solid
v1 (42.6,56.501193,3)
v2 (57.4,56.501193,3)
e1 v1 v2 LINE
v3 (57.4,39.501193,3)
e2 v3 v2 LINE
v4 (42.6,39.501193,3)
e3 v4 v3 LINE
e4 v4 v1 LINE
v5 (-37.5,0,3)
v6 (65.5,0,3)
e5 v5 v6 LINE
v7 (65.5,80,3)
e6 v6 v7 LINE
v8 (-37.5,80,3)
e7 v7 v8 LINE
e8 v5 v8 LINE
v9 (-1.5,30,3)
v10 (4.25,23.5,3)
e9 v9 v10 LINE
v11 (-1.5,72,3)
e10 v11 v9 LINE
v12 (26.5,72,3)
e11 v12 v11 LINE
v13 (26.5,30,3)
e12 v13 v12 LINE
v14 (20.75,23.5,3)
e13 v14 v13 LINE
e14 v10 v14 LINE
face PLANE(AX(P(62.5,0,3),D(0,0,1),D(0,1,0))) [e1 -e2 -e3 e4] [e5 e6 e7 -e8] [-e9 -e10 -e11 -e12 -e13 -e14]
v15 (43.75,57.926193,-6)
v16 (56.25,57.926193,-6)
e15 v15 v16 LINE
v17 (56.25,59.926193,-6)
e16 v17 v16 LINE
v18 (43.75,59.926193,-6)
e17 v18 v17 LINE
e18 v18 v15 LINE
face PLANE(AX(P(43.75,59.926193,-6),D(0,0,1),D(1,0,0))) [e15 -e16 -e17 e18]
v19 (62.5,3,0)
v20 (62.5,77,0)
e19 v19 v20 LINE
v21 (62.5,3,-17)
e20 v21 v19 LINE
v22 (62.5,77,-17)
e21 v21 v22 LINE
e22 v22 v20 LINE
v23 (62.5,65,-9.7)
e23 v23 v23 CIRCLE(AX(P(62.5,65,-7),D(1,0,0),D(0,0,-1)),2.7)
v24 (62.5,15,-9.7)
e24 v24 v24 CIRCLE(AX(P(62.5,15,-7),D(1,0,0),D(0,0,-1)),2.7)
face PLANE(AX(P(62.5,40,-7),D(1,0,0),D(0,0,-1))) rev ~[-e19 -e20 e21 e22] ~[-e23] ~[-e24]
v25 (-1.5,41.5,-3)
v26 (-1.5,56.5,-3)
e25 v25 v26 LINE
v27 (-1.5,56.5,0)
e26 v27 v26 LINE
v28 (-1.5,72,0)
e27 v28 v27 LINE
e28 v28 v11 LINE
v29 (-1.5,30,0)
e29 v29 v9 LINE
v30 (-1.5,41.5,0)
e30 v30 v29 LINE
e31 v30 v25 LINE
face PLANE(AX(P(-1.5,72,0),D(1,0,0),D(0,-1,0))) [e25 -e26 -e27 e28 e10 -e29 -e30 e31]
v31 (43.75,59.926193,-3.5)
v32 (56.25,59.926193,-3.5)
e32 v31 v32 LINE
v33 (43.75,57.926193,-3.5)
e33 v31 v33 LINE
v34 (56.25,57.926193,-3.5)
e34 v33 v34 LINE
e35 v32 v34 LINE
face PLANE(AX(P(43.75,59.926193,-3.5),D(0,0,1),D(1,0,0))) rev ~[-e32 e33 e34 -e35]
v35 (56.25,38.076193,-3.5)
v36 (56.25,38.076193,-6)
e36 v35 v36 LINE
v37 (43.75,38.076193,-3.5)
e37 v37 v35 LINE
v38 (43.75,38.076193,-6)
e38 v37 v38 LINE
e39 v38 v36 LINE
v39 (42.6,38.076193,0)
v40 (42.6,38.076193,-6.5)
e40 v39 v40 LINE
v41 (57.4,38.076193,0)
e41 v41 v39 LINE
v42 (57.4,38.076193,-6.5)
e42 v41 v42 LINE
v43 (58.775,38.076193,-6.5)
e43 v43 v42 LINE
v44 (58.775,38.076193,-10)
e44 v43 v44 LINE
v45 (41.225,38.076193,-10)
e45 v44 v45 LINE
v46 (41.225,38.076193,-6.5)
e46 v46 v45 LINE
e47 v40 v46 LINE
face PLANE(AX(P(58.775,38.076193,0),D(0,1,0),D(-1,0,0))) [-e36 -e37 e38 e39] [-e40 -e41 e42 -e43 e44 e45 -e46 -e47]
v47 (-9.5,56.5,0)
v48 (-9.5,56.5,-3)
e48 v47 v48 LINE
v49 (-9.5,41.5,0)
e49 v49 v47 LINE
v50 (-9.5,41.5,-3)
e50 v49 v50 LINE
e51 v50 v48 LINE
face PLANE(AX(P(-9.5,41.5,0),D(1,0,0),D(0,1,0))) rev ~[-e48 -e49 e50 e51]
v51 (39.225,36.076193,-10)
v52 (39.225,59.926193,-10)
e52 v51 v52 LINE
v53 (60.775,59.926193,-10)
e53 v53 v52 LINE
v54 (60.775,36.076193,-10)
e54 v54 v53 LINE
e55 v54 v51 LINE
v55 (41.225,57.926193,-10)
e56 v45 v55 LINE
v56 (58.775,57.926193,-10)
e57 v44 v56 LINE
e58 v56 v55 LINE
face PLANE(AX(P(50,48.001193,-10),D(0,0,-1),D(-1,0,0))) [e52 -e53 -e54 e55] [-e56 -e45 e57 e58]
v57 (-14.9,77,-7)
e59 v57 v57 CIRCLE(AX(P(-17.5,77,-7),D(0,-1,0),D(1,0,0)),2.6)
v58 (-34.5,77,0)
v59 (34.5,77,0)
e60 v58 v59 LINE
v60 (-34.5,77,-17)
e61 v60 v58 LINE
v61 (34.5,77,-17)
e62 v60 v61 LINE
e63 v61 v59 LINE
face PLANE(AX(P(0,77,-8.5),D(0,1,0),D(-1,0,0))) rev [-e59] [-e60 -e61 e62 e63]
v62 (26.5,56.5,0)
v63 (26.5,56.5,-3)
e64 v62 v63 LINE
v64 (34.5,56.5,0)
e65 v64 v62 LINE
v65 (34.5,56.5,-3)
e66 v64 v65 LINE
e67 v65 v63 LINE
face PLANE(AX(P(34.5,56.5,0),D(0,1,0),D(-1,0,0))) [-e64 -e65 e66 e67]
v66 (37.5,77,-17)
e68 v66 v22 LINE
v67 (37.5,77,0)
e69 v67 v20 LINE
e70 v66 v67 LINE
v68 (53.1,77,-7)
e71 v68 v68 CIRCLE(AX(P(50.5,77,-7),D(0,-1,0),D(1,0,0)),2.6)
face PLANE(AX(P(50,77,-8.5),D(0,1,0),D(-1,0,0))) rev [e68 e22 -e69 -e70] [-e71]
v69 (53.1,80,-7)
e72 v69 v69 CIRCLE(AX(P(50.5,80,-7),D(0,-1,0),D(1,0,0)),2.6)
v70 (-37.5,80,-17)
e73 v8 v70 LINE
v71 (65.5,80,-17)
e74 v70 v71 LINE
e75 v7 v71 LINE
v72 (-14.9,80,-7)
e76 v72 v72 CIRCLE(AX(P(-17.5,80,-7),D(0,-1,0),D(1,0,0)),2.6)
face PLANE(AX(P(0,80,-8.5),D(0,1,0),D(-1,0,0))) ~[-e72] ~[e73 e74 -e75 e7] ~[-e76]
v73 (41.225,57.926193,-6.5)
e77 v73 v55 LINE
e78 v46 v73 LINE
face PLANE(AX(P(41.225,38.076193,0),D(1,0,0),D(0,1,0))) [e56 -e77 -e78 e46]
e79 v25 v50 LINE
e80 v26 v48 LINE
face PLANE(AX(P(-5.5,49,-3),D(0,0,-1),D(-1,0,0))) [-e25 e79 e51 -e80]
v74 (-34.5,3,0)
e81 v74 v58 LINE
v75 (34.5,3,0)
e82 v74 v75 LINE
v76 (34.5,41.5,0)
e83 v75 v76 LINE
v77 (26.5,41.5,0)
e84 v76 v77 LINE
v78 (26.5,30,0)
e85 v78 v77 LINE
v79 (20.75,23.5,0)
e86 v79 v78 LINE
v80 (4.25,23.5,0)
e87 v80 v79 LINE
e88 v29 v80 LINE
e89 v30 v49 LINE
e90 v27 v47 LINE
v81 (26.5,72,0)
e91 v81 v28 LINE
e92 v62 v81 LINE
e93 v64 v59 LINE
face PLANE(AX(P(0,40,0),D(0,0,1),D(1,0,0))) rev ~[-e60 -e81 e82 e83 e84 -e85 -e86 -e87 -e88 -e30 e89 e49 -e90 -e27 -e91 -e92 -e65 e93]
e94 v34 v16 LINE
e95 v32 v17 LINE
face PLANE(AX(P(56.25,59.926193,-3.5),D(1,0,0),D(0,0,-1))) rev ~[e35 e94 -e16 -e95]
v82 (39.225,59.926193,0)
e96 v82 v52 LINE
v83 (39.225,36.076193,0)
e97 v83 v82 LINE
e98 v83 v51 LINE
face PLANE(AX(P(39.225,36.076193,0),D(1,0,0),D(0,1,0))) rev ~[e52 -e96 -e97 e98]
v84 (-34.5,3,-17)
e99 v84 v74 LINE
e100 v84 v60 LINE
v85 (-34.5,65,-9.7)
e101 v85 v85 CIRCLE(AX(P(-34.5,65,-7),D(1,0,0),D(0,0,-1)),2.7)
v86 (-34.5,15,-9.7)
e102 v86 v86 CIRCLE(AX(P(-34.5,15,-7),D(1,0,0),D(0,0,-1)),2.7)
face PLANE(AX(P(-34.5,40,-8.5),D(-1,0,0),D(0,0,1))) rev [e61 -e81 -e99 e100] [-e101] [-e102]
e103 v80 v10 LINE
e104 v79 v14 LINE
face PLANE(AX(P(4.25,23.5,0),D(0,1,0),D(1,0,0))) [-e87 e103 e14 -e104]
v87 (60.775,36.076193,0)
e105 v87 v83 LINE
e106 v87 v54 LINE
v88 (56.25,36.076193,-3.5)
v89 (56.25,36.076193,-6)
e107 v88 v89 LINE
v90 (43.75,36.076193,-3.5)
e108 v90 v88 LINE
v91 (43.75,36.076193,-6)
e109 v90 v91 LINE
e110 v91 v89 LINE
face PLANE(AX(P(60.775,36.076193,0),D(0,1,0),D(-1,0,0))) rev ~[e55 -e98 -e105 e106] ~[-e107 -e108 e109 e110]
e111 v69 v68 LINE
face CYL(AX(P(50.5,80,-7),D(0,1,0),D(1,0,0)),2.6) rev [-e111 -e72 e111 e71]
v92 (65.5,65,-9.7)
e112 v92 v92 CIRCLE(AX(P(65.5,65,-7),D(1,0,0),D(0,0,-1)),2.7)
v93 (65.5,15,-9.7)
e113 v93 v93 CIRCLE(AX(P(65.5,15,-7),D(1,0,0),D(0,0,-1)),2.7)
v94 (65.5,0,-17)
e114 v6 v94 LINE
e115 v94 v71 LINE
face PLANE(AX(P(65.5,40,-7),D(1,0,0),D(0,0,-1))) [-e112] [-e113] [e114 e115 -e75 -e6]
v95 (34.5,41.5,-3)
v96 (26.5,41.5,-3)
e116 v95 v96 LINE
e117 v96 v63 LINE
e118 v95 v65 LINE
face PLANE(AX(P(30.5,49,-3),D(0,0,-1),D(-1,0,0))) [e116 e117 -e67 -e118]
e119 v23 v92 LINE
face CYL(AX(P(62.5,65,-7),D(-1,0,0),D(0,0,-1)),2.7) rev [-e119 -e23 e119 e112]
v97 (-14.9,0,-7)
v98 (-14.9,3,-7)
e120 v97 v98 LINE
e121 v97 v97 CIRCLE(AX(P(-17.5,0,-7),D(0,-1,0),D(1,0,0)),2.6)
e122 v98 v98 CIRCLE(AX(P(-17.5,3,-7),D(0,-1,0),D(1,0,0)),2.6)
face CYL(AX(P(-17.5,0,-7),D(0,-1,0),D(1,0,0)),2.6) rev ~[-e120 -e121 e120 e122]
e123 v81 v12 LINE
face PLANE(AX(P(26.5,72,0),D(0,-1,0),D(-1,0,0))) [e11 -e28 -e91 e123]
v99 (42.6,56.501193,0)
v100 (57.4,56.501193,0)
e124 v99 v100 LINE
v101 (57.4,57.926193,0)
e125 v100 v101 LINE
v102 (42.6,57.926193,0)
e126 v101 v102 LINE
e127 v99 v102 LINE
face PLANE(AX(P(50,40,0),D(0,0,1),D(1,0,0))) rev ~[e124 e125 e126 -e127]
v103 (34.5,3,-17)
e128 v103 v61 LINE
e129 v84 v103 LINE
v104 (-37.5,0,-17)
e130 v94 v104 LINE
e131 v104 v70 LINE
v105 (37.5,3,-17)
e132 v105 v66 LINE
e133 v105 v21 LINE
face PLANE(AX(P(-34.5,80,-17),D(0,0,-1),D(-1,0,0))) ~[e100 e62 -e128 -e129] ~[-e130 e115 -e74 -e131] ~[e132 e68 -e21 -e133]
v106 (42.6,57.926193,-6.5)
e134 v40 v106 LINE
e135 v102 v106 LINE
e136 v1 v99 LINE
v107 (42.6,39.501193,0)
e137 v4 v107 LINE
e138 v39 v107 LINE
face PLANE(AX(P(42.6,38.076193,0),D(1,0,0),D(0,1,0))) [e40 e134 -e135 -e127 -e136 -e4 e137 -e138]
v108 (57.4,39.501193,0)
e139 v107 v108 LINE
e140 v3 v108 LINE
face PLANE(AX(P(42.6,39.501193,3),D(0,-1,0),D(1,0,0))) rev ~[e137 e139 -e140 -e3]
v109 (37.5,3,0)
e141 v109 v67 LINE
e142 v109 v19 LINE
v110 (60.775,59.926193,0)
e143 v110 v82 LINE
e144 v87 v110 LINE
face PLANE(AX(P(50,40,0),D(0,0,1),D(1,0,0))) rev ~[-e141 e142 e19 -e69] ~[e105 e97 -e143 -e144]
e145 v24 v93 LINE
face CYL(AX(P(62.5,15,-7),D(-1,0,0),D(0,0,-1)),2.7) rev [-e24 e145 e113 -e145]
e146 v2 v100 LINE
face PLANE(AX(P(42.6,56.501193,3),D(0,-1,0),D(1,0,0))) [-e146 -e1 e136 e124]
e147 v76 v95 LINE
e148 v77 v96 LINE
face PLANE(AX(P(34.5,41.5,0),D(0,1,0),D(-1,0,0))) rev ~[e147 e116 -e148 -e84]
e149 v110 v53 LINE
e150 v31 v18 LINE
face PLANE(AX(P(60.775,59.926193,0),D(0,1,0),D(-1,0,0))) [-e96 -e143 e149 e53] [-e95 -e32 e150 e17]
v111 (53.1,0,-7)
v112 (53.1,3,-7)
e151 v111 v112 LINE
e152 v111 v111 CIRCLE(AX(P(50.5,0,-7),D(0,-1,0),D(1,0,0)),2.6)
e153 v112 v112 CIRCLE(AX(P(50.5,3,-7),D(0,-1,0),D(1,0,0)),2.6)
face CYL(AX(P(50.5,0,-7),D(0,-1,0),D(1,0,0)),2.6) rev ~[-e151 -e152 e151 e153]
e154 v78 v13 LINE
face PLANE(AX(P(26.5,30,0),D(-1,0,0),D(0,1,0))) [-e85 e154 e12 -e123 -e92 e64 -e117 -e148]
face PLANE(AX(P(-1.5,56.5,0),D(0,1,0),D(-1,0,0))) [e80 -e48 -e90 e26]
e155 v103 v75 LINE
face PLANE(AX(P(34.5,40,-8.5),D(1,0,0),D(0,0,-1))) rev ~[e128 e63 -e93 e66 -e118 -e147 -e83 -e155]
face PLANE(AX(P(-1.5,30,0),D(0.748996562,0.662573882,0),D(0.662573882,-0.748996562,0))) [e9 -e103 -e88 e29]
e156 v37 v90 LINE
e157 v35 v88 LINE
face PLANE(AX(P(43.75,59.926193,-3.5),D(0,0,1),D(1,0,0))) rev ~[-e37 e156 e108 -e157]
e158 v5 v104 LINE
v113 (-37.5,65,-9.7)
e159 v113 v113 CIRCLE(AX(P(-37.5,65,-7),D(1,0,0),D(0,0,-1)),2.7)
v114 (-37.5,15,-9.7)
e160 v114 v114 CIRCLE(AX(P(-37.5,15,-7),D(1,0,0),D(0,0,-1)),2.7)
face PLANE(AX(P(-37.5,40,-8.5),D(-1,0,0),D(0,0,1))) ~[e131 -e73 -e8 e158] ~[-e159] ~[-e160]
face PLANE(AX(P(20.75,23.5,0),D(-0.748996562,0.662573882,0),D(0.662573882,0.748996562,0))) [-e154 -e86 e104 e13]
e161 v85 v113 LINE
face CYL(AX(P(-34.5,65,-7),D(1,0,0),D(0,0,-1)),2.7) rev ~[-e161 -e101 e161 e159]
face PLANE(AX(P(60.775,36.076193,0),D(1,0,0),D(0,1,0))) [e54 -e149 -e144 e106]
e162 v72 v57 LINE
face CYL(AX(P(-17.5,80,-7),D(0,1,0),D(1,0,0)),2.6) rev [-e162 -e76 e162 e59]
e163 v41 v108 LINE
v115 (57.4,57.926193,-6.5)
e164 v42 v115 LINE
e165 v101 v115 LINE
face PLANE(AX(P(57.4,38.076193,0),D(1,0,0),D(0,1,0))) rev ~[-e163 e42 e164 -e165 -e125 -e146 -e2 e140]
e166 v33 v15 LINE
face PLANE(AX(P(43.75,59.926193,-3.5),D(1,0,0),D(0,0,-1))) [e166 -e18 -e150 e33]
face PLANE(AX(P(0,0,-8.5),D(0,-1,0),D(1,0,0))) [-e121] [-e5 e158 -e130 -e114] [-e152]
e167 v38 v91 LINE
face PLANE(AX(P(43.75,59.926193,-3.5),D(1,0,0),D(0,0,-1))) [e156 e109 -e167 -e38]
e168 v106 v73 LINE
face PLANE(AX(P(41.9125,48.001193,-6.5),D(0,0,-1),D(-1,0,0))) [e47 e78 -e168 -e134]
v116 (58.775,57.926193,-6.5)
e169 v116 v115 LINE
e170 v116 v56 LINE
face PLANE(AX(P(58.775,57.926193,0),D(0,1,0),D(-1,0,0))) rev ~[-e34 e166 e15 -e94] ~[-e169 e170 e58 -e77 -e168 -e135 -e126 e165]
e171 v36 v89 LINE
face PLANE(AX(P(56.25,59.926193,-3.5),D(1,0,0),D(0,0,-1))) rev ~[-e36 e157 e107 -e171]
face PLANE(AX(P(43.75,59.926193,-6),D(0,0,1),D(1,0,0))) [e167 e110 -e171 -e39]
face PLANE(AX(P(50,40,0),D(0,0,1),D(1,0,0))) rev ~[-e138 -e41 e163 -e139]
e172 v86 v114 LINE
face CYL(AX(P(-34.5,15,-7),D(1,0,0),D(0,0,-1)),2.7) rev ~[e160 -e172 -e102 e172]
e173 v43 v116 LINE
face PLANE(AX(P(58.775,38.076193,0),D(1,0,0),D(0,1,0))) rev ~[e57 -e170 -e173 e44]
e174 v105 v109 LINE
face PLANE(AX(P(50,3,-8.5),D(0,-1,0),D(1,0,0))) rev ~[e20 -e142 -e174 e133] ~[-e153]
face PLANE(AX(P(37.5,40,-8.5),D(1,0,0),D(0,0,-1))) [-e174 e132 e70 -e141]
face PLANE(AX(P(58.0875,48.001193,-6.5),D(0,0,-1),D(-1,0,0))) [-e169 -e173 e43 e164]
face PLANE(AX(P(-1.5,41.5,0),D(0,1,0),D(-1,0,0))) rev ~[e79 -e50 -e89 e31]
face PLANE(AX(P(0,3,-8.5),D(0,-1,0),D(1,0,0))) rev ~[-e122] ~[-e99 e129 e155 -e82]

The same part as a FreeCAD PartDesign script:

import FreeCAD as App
import Part
import Sketcher
from FreeCAD import Vector
Q = App.Units.Quantity

doc = App.newDocument("Part")
body = doc.addObject("PartDesign::Body", "Body")

# Sketch on XY plane
sketch1 = body.newObject("Sketcher::SketchObject", "Sketch")
sketch1.AttachmentSupport = (doc.getObject("XY_Plane"), [""])
sketch1.MapMode = "FlatFace"
sketch1.addGeometry(Part.LineSegment(Vector(-38, 80, 0), Vector(-38, 0, 0)), False)
sketch1.addGeometry(Part.LineSegment(Vector(-38, 0, 0), Vector(38, 0, 0)), False)
sketch1.addGeometry(Part.LineSegment(Vector(38, 0, 0), Vector(38, 80, 0)), False)
sketch1.addGeometry(Part.LineSegment(Vector(38, 80, 0), Vector(-38, 80, 0)), False)
sketch1.addGeometry(Part.LineSegment(Vector(21, 24, 0), Vector(4, 24, 0)), False)
sketch1.addGeometry(Part.LineSegment(Vector(4, 24, 0), Vector(-2, 30, 0)), False)
sketch1.addGeometry(Part.LineSegment(Vector(-2, 30, 0), Vector(-2, 72, 0)), False)
sketch1.addGeometry(Part.LineSegment(Vector(-2, 72, 0), Vector(26, 72, 0)), False)
sketch1.addGeometry(Part.LineSegment(Vector(26, 72, 0), Vector(26, 30, 0)), False)
sketch1.addGeometry(Part.LineSegment(Vector(26, 30, 0), Vector(21, 24, 0)), False)
sketch1.addConstraint(Sketcher.Constraint("Coincident", 0, 2, 1, 1))
sketch1.addConstraint(Sketcher.Constraint("Coincident", 1, 2, 2, 1))
sketch1.addConstraint(Sketcher.Constraint("Coincident", 2, 2, 3, 1))
sketch1.addConstraint(Sketcher.Constraint("Coincident", 3, 2, 0, 1))
sketch1.addConstraint(Sketcher.Constraint("Coincident", 4, 2, 5, 1))
sketch1.addConstraint(Sketcher.Constraint("Coincident", 5, 2, 6, 1))
sketch1.addConstraint(Sketcher.Constraint("Coincident", 6, 2, 7, 1))
sketch1.addConstraint(Sketcher.Constraint("Coincident", 7, 2, 8, 1))
sketch1.addConstraint(Sketcher.Constraint("Coincident", 8, 2, 9, 1))
sketch1.addConstraint(Sketcher.Constraint("Coincident", 9, 2, 4, 1))
sketch1.addConstraint(Sketcher.Constraint("Vertical", 0))
sketch1.addConstraint(Sketcher.Constraint("Horizontal", 1))
sketch1.addConstraint(Sketcher.Constraint("Vertical", 2))
sketch1.addConstraint(Sketcher.Constraint("Horizontal", 3))
sketch1.addConstraint(Sketcher.Constraint("Horizontal", 4))
sketch1.addConstraint(Sketcher.Constraint("Vertical", 6))
sketch1.addConstraint(Sketcher.Constraint("Horizontal", 7))
sketch1.addConstraint(Sketcher.Constraint("Vertical", 8))
sketch1.addConstraint(Sketcher.Constraint("Symmetric", 0, 2, 1, 2, -1, 1))
sketch1.addConstraint(Sketcher.Constraint("Horizontal", 5, 2, 8, 2))
sketch1.addConstraint(Sketcher.Constraint("Equal", 5, 9))
sketch1.addConstraint(Sketcher.Constraint("DistanceX", 1, 1, 1, 2, Q("75 mm")))
sketch1.addConstraint(Sketcher.Constraint("DistanceX", 7, 1, 7, 2, Q("28 mm")))
sketch1.addConstraint(Sketcher.Constraint("DistanceY", 0, 2, 0, 1, Q("80 mm")))
sketch1.addConstraint(Sketcher.Constraint("DistanceY", 6, 1, 6, 2, Q("42 mm")))
sketch1.addConstraint(Sketcher.Constraint("DistanceX", 4, 2, 4, 1, Q("16.5 mm")))
sketch1.addConstraint(Sketcher.Constraint("DistanceY", -1, 1, 5, 2, Q("30 mm")))
sketch1.addConstraint(Sketcher.Constraint("DistanceX", 0, 2, 5, 2, Q("36 mm")))
sketch1.addConstraint(Sketcher.Constraint("DistanceY", -1, 1, 4, 2, Q("23.5 mm")))
pad1 = body.newObject("PartDesign::Pad", "Pad")
pad1.Profile = sketch1
pad1.Length = 3

# Sketch on YZ plane
sketch2 = body.newObject("Sketcher::SketchObject", "Sketch001")
sketch2.AttachmentSupport = (doc.getObject("YZ_Plane"), [""])
sketch2.MapMode = "FlatFace"
sketch2.AttachmentOffset = App.Placement(Vector(0, 0, 37.5), App.Rotation())
sketch2.addGeometry(Part.LineSegment(Vector(80, 0, 0), Vector(0, 0, 0)), False)
sketch2.addGeometry(Part.LineSegment(Vector(0, 0, 0), Vector(0, -17, 0)), False)
sketch2.addGeometry(Part.LineSegment(Vector(0, -17, 0), Vector(80, -17, 0)), False)
sketch2.addGeometry(Part.LineSegment(Vector(80, -17, 0), Vector(80, 0, 0)), False)
sketch2.addConstraint(Sketcher.Constraint("Coincident", 0, 2, 1, 1))
sketch2.addConstraint(Sketcher.Constraint("Coincident", 1, 2, 2, 1))
sketch2.addConstraint(Sketcher.Constraint("Coincident", 2, 2, 3, 1))
sketch2.addConstraint(Sketcher.Constraint("Coincident", 3, 2, 0, 1))
sketch2.addConstraint(Sketcher.Constraint("Horizontal", 0))
sketch2.addConstraint(Sketcher.Constraint("Vertical", 1))
sketch2.addConstraint(Sketcher.Constraint("Horizontal", 2))
sketch2.addConstraint(Sketcher.Constraint("Vertical", 3))
sketch2.addConstraint(Sketcher.Constraint("Coincident", 0, 2, -1, 1))
sketch2.addConstraint(Sketcher.Constraint("DistanceX", 0, 2, 0, 1, Q("80 mm")))
sketch2.addConstraint(Sketcher.Constraint("DistanceY", 1, 2, 1, 1, Q("17 mm")))
pad2 = body.newObject("PartDesign::Pad", "Pad001")
pad2.Profile = sketch2
pad2.Length = 3
pad2.Reversed = True
doc.recompute()

mirrored = body.newObject("PartDesign::Mirrored", "Mirrored")
mirrored.Originals = [pad2]
mirrored.MirrorPlane = (doc.getObject("YZ_Plane"), [""])
body.Tip = mirrored

# Sketch on XY plane
sketch3 = body.newObject("Sketcher::SketchObject", "Sketch002")
sketch3.AttachmentSupport = (doc.getObject("XY_Plane"), [""])
sketch3.MapMode = "FlatFace"
sketch3.AttachmentOffset = App.Placement(Vector(0, 0, 3), App.Rotation())
sketch3.addGeometry(Part.LineSegment(Vector(38, 80, 0), Vector(38, 0, 0)), False)
sketch3.addGeometry(Part.LineSegment(Vector(38, 0, 0), Vector(62, 0, 0)), False)
sketch3.addGeometry(Part.LineSegment(Vector(62, 0, 0), Vector(62, 80, 0)), False)
sketch3.addGeometry(Part.LineSegment(Vector(62, 80, 0), Vector(38, 80, 0)), False)
sketch3.addGeometry(Part.LineSegment(Vector(57, 40, 0), Vector(43, 40, 0)), False)
sketch3.addGeometry(Part.LineSegment(Vector(43, 40, 0), Vector(43, 57, 0)), False)
sketch3.addGeometry(Part.LineSegment(Vector(43, 57, 0), Vector(57, 57, 0)), False)
sketch3.addGeometry(Part.LineSegment(Vector(57, 57, 0), Vector(57, 40, 0)), False)
sketch3.addConstraint(Sketcher.Constraint("Coincident", 0, 2, 1, 1))
sketch3.addConstraint(Sketcher.Constraint("Coincident", 1, 2, 2, 1))
sketch3.addConstraint(Sketcher.Constraint("Coincident", 2, 2, 3, 1))
sketch3.addConstraint(Sketcher.Constraint("Coincident", 3, 2, 0, 1))
sketch3.addConstraint(Sketcher.Constraint("Coincident", 4, 2, 5, 1))
sketch3.addConstraint(Sketcher.Constraint("Coincident", 5, 2, 6, 1))
sketch3.addConstraint(Sketcher.Constraint("Coincident", 6, 2, 7, 1))
sketch3.addConstraint(Sketcher.Constraint("Coincident", 7, 2, 4, 1))
sketch3.addConstraint(Sketcher.Constraint("Vertical", 0))
sketch3.addConstraint(Sketcher.Constraint("Horizontal", 1))
sketch3.addConstraint(Sketcher.Constraint("Vertical", 2))
sketch3.addConstraint(Sketcher.Constraint("Horizontal", 3))
sketch3.addConstraint(Sketcher.Constraint("Horizontal", 4))
sketch3.addConstraint(Sketcher.Constraint("Vertical", 5))
sketch3.addConstraint(Sketcher.Constraint("Horizontal", 6))
sketch3.addConstraint(Sketcher.Constraint("Vertical", 7))
sketch3.addConstraint(Sketcher.Constraint("PointOnObject", 0, 2, -1))
sketch3.addConstraint(Sketcher.Constraint("DistanceX", 1, 1, 1, 2, Q("25 mm")))
sketch3.addConstraint(Sketcher.Constraint("DistanceY", 0, 2, 0, 1, Q("80 mm")))
sketch3.addConstraint(Sketcher.Constraint("DistanceY", 5, 1, 5, 2, Q("17 mm")))
sketch3.addConstraint(Sketcher.Constraint("DistanceX", 4, 2, 4, 1, Q("14.8 mm")))
sketch3.addConstraint(Sketcher.Constraint("DistanceX", -1, 1, 0, 2, Q("37.5 mm")))
sketch3.addConstraint(Sketcher.Constraint("DistanceX", -1, 1, 4, 2, Q("42.6 mm")))
sketch3.addConstraint(Sketcher.Constraint("DistanceY", -1, 1, 4, 2, Q("39.501193 mm")))
pad3 = body.newObject("PartDesign::Pad", "Pad002")
pad3.Profile = sketch3
pad3.Length = 3
pad3.Reversed = True

# Sketch on XY plane
sketch4 = body.newObject("Sketcher::SketchObject", "Sketch003")
sketch4.AttachmentSupport = (doc.getObject("XY_Plane"), [""])
sketch4.MapMode = "FlatFace"
sketch4.addGeometry(Part.LineSegment(Vector(61, 60, 0), Vector(61, 36, 0)), False)
sketch4.addGeometry(Part.LineSegment(Vector(61, 36, 0), Vector(39, 36, 0)), False)
sketch4.addGeometry(Part.LineSegment(Vector(39, 36, 0), Vector(39, 60, 0)), False)
sketch4.addGeometry(Part.LineSegment(Vector(39, 60, 0), Vector(61, 60, 0)), False)
sketch4.addGeometry(Part.LineSegment(Vector(41, 38, 0), Vector(59, 38, 0)), False)
sketch4.addGeometry(Part.LineSegment(Vector(59, 38, 0), Vector(59, 58, 0)), False)
sketch4.addGeometry(Part.LineSegment(Vector(59, 58, 0), Vector(41, 58, 0)), False)
sketch4.addGeometry(Part.LineSegment(Vector(41, 58, 0), Vector(41, 38, 0)), False)
sketch4.addConstraint(Sketcher.Constraint("Coincident", 0, 2, 1, 1))
sketch4.addConstraint(Sketcher.Constraint("Coincident", 1, 2, 2, 1))
sketch4.addConstraint(Sketcher.Constraint("Coincident", 2, 2, 3, 1))
sketch4.addConstraint(Sketcher.Constraint("Coincident", 3, 2, 0, 1))
sketch4.addConstraint(Sketcher.Constraint("Coincident", 4, 2, 5, 1))
sketch4.addConstraint(Sketcher.Constraint("Coincident", 5, 2, 6, 1))
sketch4.addConstraint(Sketcher.Constraint("Coincident", 6, 2, 7, 1))
sketch4.addConstraint(Sketcher.Constraint("Coincident", 7, 2, 4, 1))
sketch4.addConstraint(Sketcher.Constraint("Vertical", 0))
sketch4.addConstraint(Sketcher.Constraint("Horizontal", 1))
sketch4.addConstraint(Sketcher.Constraint("Vertical", 2))
sketch4.addConstraint(Sketcher.Constraint("Horizontal", 3))
sketch4.addConstraint(Sketcher.Constraint("Horizontal", 4))
sketch4.addConstraint(Sketcher.Constraint("Vertical", 5))
sketch4.addConstraint(Sketcher.Constraint("Horizontal", 6))
sketch4.addConstraint(Sketcher.Constraint("Vertical", 7))
sketch4.addConstraint(Sketcher.Constraint("DistanceX", 4, 2, 0, 2, Q("2 mm")))
sketch4.addConstraint(Sketcher.Constraint("DistanceY", 0, 2, 4, 2, Q("2 mm")))
sketch4.addConstraint(Sketcher.Constraint("DistanceY", 5, 2, 3, 2, Q("2 mm")))
sketch4.addConstraint(Sketcher.Constraint("DistanceX", 2, 2, 6, 2, Q("2 mm")))
sketch4.addConstraint(Sketcher.Constraint("DistanceX", 1, 2, 1, 1, Q("21.55 mm")))
sketch4.addConstraint(Sketcher.Constraint("DistanceY", 0, 2, 0, 1, Q("23.85 mm")))
sketch4.addConstraint(Sketcher.Constraint("DistanceX", -1, 1, 0, 2, Q("60.775 mm")))
sketch4.addConstraint(Sketcher.Constraint("DistanceY", -1, 1, 0, 2, Q("36.076193 mm")))
pad4 = body.newObject("PartDesign::Pad", "Pad003")
pad4.Profile = sketch4
pad4.Length = 10
pad4.Reversed = True

# Sketch on XZ plane
sketch5 = body.newObject("Sketcher::SketchObject", "Sketch004")
sketch5.AttachmentSupport = (doc.getObject("XZ_Plane"), [""])
sketch5.MapMode = "FlatFace"
sketch5.AttachmentOffset = App.Placement(Vector(0, 0, -59.926193), App.Rotation())
sketch5.addGeometry(Part.LineSegment(Vector(43.8, -6, 0), Vector(43.8, -3.5, 0)), False)
sketch5.addGeometry(Part.LineSegment(Vector(43.8, -3.5, 0), Vector(56.2, -3.5, 0)), False)
sketch5.addGeometry(Part.LineSegment(Vector(56.2, -3.5, 0), Vector(56.2, -6, 0)), False)
sketch5.addGeometry(Part.LineSegment(Vector(56.2, -6, 0), Vector(43.8, -6, 0)), False)
sketch5.addConstraint(Sketcher.Constraint("Coincident", 0, 2, 1, 1))
sketch5.addConstraint(Sketcher.Constraint("Coincident", 1, 2, 2, 1))
sketch5.addConstraint(Sketcher.Constraint("Coincident", 2, 2, 3, 1))
sketch5.addConstraint(Sketcher.Constraint("Coincident", 3, 2, 0, 1))
sketch5.addConstraint(Sketcher.Constraint("Vertical", 0))
sketch5.addConstraint(Sketcher.Constraint("Horizontal", 1))
sketch5.addConstraint(Sketcher.Constraint("Vertical", 2))
sketch5.addConstraint(Sketcher.Constraint("Horizontal", 3))
sketch5.addConstraint(Sketcher.Constraint("DistanceX", 1, 1, 1, 2, Q("12.5 mm")))
sketch5.addConstraint(Sketcher.Constraint("DistanceY", 0, 1, 0, 2, Q("2.5 mm")))
sketch5.addConstraint(Sketcher.Constraint("DistanceY", 2, 2, -1, 1, Q("6 mm")))
sketch5.addConstraint(Sketcher.Constraint("DistanceX", -1, 1, 0, 2, Q("43.75 mm")))
pocket1 = body.newObject("PartDesign::Pocket", "Pocket")
pocket1.Profile = sketch5
pocket1.Length = 23.85
pocket1.Reversed = True

# Sketch on XY plane
sketch6 = body.newObject("Sketcher::SketchObject", "Sketch005")
sketch6.AttachmentSupport = (doc.getObject("XY_Plane"), [""])
sketch6.MapMode = "FlatFace"
sketch6.addGeometry(Part.LineSegment(Vector(42.6, 57.9, 0), Vector(42.6, 38.1, 0)), False)
sketch6.addGeometry(Part.LineSegment(Vector(42.6, 38.1, 0), Vector(41.2, 38.1, 0)), False)
sketch6.addGeometry(Part.LineSegment(Vector(41.2, 38.1, 0), Vector(41.2, 57.9, 0)), False)
sketch6.addGeometry(Part.LineSegment(Vector(41.2, 57.9, 0), Vector(42.6, 57.9, 0)), False)
sketch6.addGeometry(Part.LineSegment(Vector(58.8, 57.9, 0), Vector(58.8, 38.1, 0)), False)
sketch6.addGeometry(Part.LineSegment(Vector(58.8, 38.1, 0), Vector(57.4, 38.1, 0)), False)
sketch6.addGeometry(Part.LineSegment(Vector(57.4, 38.1, 0), Vector(57.4, 57.9, 0)), False)
sketch6.addGeometry(Part.LineSegment(Vector(57.4, 57.9, 0), Vector(58.8, 57.9, 0)), False)
sketch6.addConstraint(Sketcher.Constraint("Coincident", 0, 2, 1, 1))
sketch6.addConstraint(Sketcher.Constraint("Coincident", 1, 2, 2, 1))
sketch6.addConstraint(Sketcher.Constraint("Coincident", 2, 2, 3, 1))
sketch6.addConstraint(Sketcher.Constraint("Coincident", 3, 2, 0, 1))
sketch6.addConstraint(Sketcher.Constraint("Coincident", 4, 2, 5, 1))
sketch6.addConstraint(Sketcher.Constraint("Coincident", 5, 2, 6, 1))
sketch6.addConstraint(Sketcher.Constraint("Coincident", 6, 2, 7, 1))
sketch6.addConstraint(Sketcher.Constraint("Coincident", 7, 2, 4, 1))
sketch6.addConstraint(Sketcher.Constraint("Vertical", 0))
sketch6.addConstraint(Sketcher.Constraint("Horizontal", 1))
sketch6.addConstraint(Sketcher.Constraint("Vertical", 2))
sketch6.addConstraint(Sketcher.Constraint("Horizontal", 3))
sketch6.addConstraint(Sketcher.Constraint("Vertical", 4))
sketch6.addConstraint(Sketcher.Constraint("Horizontal", 5))
sketch6.addConstraint(Sketcher.Constraint("Vertical", 6))
sketch6.addConstraint(Sketcher.Constraint("Horizontal", 7))
sketch6.addConstraint(Sketcher.Constraint("Horizontal", 1, 2, 4, 2))
sketch6.addConstraint(Sketcher.Constraint("Horizontal", 3, 2, 6, 2))
sketch6.addConstraint(Sketcher.Constraint("Equal", 3, 5))
sketch6.addConstraint(Sketcher.Constraint("DistanceY", 0, 2, 0, 1, Q("19.85 mm")))
sketch6.addConstraint(Sketcher.Constraint("DistanceX", -1, 1, 0, 2, Q("42.6 mm")))
sketch6.addConstraint(Sketcher.Constraint("DistanceX", -1, 1, 5, 2, Q("57.4 mm")))
sketch6.addConstraint(Sketcher.Constraint("DistanceX", 1, 2, 1, 1, Q("1.375 mm")))
sketch6.addConstraint(Sketcher.Constraint("DistanceY", -1, 1, 0, 2, Q("38.076193 mm")))
pad5 = body.newObject("PartDesign::Pad", "Pad004")
pad5.Profile = sketch6
pad5.Length = 6.5
pad5.Reversed = True

# Sketch on YZ plane
sketch7 = body.newObject("Sketcher::SketchObject", "Sketch006")
sketch7.AttachmentSupport = (doc.getObject("YZ_Plane"), [""])
sketch7.MapMode = "FlatFace"
sketch7.AttachmentOffset = App.Placement(Vector(0, 0, 62.5), App.Rotation())
sketch7.addGeometry(Part.LineSegment(Vector(80, 3, 0), Vector(0, 3, 0)), False)
sketch7.addGeometry(Part.LineSegment(Vector(0, 3, 0), Vector(0, -17, 0)), False)
sketch7.addGeometry(Part.LineSegment(Vector(0, -17, 0), Vector(80, -17, 0)), False)
sketch7.addGeometry(Part.LineSegment(Vector(80, -17, 0), Vector(80, 3, 0)), False)
sketch7.addGeometry(Part.Circle(Vector(15, -7, 0), Vector(0, 0, 1), 2.7), False)
sketch7.addGeometry(Part.Circle(Vector(65, -7, 0), Vector(0, 0, 1), 2.7), False)
sketch7.addConstraint(Sketcher.Constraint("Coincident", 0, 2, 1, 1))
sketch7.addConstraint(Sketcher.Constraint("Coincident", 1, 2, 2, 1))
sketch7.addConstraint(Sketcher.Constraint("Coincident", 2, 2, 3, 1))
sketch7.addConstraint(Sketcher.Constraint("Coincident", 3, 2, 0, 1))
sketch7.addConstraint(Sketcher.Constraint("Horizontal", 0))
sketch7.addConstraint(Sketcher.Constraint("Vertical", 1))
sketch7.addConstraint(Sketcher.Constraint("Horizontal", 2))
sketch7.addConstraint(Sketcher.Constraint("Vertical", 3))
sketch7.addConstraint(Sketcher.Constraint("Equal", 4, 5))
sketch7.addConstraint(Sketcher.Constraint("PointOnObject", 0, 2, -2))
sketch7.addConstraint(Sketcher.Constraint("Horizontal", 4, 3, 5, 3))
sketch7.addConstraint(Sketcher.Constraint("Diameter", 4, Q("5.4 mm")))
sketch7.addConstraint(Sketcher.Constraint("DistanceX", 0, 2, 0, 1, Q("80 mm")))
sketch7.addConstraint(Sketcher.Constraint("DistanceY", 1, 2, 1, 1, Q("20 mm")))
sketch7.addConstraint(Sketcher.Constraint("DistanceX", -1, 1, 4, 3, Q("15 mm")))
sketch7.addConstraint(Sketcher.Constraint("DistanceY", 4, 3, -1, 1, Q("7 mm")))
sketch7.addConstraint(Sketcher.Constraint("DistanceX", -1, 1, 5, 3, Q("65 mm")))
sketch7.addConstraint(Sketcher.Constraint("DistanceY", -1, 1, 0, 2, Q("3 mm")))
pad6 = body.newObject("PartDesign::Pad", "Pad005")
pad6.Profile = sketch7
pad6.Length = 3

# Sketch on XY plane
sketch8 = body.newObject("Sketcher::SketchObject", "Sketch007")
sketch8.AttachmentSupport = (doc.getObject("XY_Plane"), [""])
sketch8.MapMode = "FlatFace"
sketch8.addGeometry(Part.LineSegment(Vector(34, 56, 0), Vector(34, 42, 0)), False)
sketch8.addGeometry(Part.LineSegment(Vector(34, 42, 0), Vector(26, 42, 0)), False)
sketch8.addGeometry(Part.LineSegment(Vector(26, 42, 0), Vector(26, 56, 0)), False)
sketch8.addGeometry(Part.LineSegment(Vector(26, 56, 0), Vector(34, 56, 0)), False)
sketch8.addGeometry(Part.LineSegment(Vector(-2, 56, 0), Vector(-2, 42, 0)), False)
sketch8.addGeometry(Part.LineSegment(Vector(-2, 42, 0), Vector(-10, 42, 0)), False)
sketch8.addGeometry(Part.LineSegment(Vector(-10, 42, 0), Vector(-10, 56, 0)), False)
sketch8.addGeometry(Part.LineSegment(Vector(-10, 56, 0), Vector(-2, 56, 0)), False)
sketch8.addConstraint(Sketcher.Constraint("Coincident", 0, 2, 1, 1))
sketch8.addConstraint(Sketcher.Constraint("Coincident", 1, 2, 2, 1))
sketch8.addConstraint(Sketcher.Constraint("Coincident", 2, 2, 3, 1))
sketch8.addConstraint(Sketcher.Constraint("Coincident", 3, 2, 0, 1))
sketch8.addConstraint(Sketcher.Constraint("Coincident", 4, 2, 5, 1))
sketch8.addConstraint(Sketcher.Constraint("Coincident", 5, 2, 6, 1))
sketch8.addConstraint(Sketcher.Constraint("Coincident", 6, 2, 7, 1))
sketch8.addConstraint(Sketcher.Constraint("Coincident", 7, 2, 4, 1))
sketch8.addConstraint(Sketcher.Constraint("Vertical", 0))
sketch8.addConstraint(Sketcher.Constraint("Horizontal", 1))
sketch8.addConstraint(Sketcher.Constraint("Vertical", 2))
sketch8.addConstraint(Sketcher.Constraint("Horizontal", 3))
sketch8.addConstraint(Sketcher.Constraint("Vertical", 4))
sketch8.addConstraint(Sketcher.Constraint("Horizontal", 5))
sketch8.addConstraint(Sketcher.Constraint("Vertical", 6))
sketch8.addConstraint(Sketcher.Constraint("Horizontal", 7))
sketch8.addConstraint(Sketcher.Constraint("Horizontal", 1, 2, 4, 2))
sketch8.addConstraint(Sketcher.Constraint("Horizontal", 3, 2, 6, 2))
sketch8.addConstraint(Sketcher.Constraint("Equal", 3, 5))
sketch8.addConstraint(Sketcher.Constraint("DistanceX", 1, 2, 1, 1, Q("8 mm")))
sketch8.addConstraint(Sketcher.Constraint("DistanceY", 0, 2, 0, 1, Q("15 mm")))
sketch8.addConstraint(Sketcher.Constraint("DistanceX", 4, 2, 1, 2, Q("28 mm")))
sketch8.addConstraint(Sketcher.Constraint("DistanceX", -1, 1, 0, 2, Q("34.5 mm")))
sketch8.addConstraint(Sketcher.Constraint("DistanceY", -1, 1, 0, 2, Q("41.5 mm")))
pad7 = body.newObject("PartDesign::Pad", "Pad006")
pad7.Profile = sketch8
pad7.Length = 3
pad7.Reversed = True

# Sketch on XZ plane
sketch9 = body.newObject("Sketcher::SketchObject", "Sketch008")
sketch9.AttachmentSupport = (doc.getObject("XZ_Plane"), [""])
sketch9.MapMode = "FlatFace"
sketch9.addGeometry(Part.LineSegment(Vector(-34.5, 0, 0), Vector(-34.5, -17, 0)), False)
sketch9.addGeometry(Part.LineSegment(Vector(-34.5, -17, 0), Vector(34.5, -17, 0)), False)
sketch9.addGeometry(Part.LineSegment(Vector(34.5, -17, 0), Vector(34.5, 0, 0)), False)
sketch9.addGeometry(Part.LineSegment(Vector(34.5, 0, 0), Vector(-34.5, 0, 0)), False)
sketch9.addGeometry(Part.Circle(Vector(-17.5, -7, 0), Vector(0, 0, 1), 2.6), False)
sketch9.addGeometry(Part.LineSegment(Vector(37.5, 0, 0), Vector(37.5, -17, 0)), False)
sketch9.addGeometry(Part.LineSegment(Vector(37.5, -17, 0), Vector(62.5, -17, 0)), False)
sketch9.addGeometry(Part.LineSegment(Vector(62.5, -17, 0), Vector(62.5, 0, 0)), False)
sketch9.addGeometry(Part.LineSegment(Vector(62.5, 0, 0), Vector(37.5, 0, 0)), False)
sketch9.addGeometry(Part.Circle(Vector(50.5, -7, 0), Vector(0, 0, 1), 2.6), False)
sketch9.addConstraint(Sketcher.Constraint("Coincident", 0, 2, 1, 1))
sketch9.addConstraint(Sketcher.Constraint("Coincident", 1, 2, 2, 1))
sketch9.addConstraint(Sketcher.Constraint("Coincident", 2, 2, 3, 1))
sketch9.addConstraint(Sketcher.Constraint("Coincident", 3, 2, 0, 1))
sketch9.addConstraint(Sketcher.Constraint("Coincident", 5, 2, 6, 1))
sketch9.addConstraint(Sketcher.Constraint("Coincident", 6, 2, 7, 1))
sketch9.addConstraint(Sketcher.Constraint("Coincident", 7, 2, 8, 1))
sketch9.addConstraint(Sketcher.Constraint("Coincident", 8, 2, 5, 1))
sketch9.addConstraint(Sketcher.Constraint("Vertical", 0))
sketch9.addConstraint(Sketcher.Constraint("Horizontal", 1))
sketch9.addConstraint(Sketcher.Constraint("Vertical", 2))
sketch9.addConstraint(Sketcher.Constraint("Horizontal", 3))
sketch9.addConstraint(Sketcher.Constraint("Vertical", 5))
sketch9.addConstraint(Sketcher.Constraint("Horizontal", 6))
sketch9.addConstraint(Sketcher.Constraint("Vertical", 7))
sketch9.addConstraint(Sketcher.Constraint("Horizontal", 8))
sketch9.addConstraint(Sketcher.Constraint("Equal", 4, 9))
sketch9.addConstraint(Sketcher.Constraint("Symmetric", 2, 2, 3, 2, -1, 1))
sketch9.addConstraint(Sketcher.Constraint("PointOnObject", 7, 2, -1))
sketch9.addConstraint(Sketcher.Constraint("Horizontal", 4, 3, 9, 3))
sketch9.addConstraint(Sketcher.Constraint("Horizontal", 1, 2, 5, 2))
sketch9.addConstraint(Sketcher.Constraint("Diameter", 4, Q("5.2 mm")))
sketch9.addConstraint(Sketcher.Constraint("DistanceX", 1, 1, 1, 2, Q("69 mm")))
sketch9.addConstraint(Sketcher.Constraint("DistanceX", 6, 1, 6, 2, Q("25 mm")))
sketch9.addConstraint(Sketcher.Constraint("DistanceY", 0, 2, 0, 1, Q("17 mm")))
sketch9.addConstraint(Sketcher.Constraint("DistanceY", 4, 3, -1, 1, Q("7 mm")))
sketch9.addConstraint(Sketcher.Constraint("DistanceX", 4, 3, 9, 3, Q("68 mm")))
sketch9.addConstraint(Sketcher.Constraint("DistanceX", 0, 2, 4, 3, Q("17 mm")))
sketch9.addConstraint(Sketcher.Constraint("DistanceX", 1, 2, 5, 2, Q("3 mm")))
pad8 = body.newObject("PartDesign::Pad", "Pad007")
pad8.Profile = sketch9
pad8.Length = 3
pad8.Reversed = True
doc.recompute()

datumplane = body.newObject("PartDesign::Plane", "DatumPlane")
datumplane.AttachmentSupport = (doc.getObject("XZ_Plane"), [""])
datumplane.MapMode = "FlatFace"
datumplane.AttachmentOffset = App.Placement(Vector(0, 0, -40), App.Rotation())
mirrored2 = body.newObject("PartDesign::Mirrored", "Mirrored001")
mirrored2.Originals = [pad8]
mirrored2.MirrorPlane = (datumplane, [""])
body.Tip = mirrored2

# Sketch on YZ plane
sketch10 = body.newObject("Sketcher::SketchObject", "Sketch009")
sketch10.AttachmentSupport = (doc.getObject("YZ_Plane"), [""])
sketch10.MapMode = "FlatFace"
sketch10.AttachmentOffset = App.Placement(Vector(0, 0, -34.5), App.Rotation())
sketch10.addGeometry(Part.Circle(Vector(15, -7, 0), Vector(0, 0, 1), 2.7), False)
sketch10.addGeometry(Part.Circle(Vector(65, -7, 0), Vector(0, 0, 1), 2.7), False)
sketch10.addConstraint(Sketcher.Constraint("Equal", 0, 1))
sketch10.addConstraint(Sketcher.Constraint("Horizontal", 0, 3, 1, 3))
sketch10.addConstraint(Sketcher.Constraint("Diameter", 0, Q("5.4 mm")))
sketch10.addConstraint(Sketcher.Constraint("DistanceX", -1, 1, 0, 3, Q("15 mm")))
sketch10.addConstraint(Sketcher.Constraint("DistanceY", 0, 3, -1, 1, Q("7 mm")))
sketch10.addConstraint(Sketcher.Constraint("DistanceX", -1, 1, 1, 3, Q("65 mm")))
pocket2 = body.newObject("PartDesign::Pocket", "Pocket001")
pocket2.Profile = sketch10
pocket2.Length = 3

doc.recompute()
